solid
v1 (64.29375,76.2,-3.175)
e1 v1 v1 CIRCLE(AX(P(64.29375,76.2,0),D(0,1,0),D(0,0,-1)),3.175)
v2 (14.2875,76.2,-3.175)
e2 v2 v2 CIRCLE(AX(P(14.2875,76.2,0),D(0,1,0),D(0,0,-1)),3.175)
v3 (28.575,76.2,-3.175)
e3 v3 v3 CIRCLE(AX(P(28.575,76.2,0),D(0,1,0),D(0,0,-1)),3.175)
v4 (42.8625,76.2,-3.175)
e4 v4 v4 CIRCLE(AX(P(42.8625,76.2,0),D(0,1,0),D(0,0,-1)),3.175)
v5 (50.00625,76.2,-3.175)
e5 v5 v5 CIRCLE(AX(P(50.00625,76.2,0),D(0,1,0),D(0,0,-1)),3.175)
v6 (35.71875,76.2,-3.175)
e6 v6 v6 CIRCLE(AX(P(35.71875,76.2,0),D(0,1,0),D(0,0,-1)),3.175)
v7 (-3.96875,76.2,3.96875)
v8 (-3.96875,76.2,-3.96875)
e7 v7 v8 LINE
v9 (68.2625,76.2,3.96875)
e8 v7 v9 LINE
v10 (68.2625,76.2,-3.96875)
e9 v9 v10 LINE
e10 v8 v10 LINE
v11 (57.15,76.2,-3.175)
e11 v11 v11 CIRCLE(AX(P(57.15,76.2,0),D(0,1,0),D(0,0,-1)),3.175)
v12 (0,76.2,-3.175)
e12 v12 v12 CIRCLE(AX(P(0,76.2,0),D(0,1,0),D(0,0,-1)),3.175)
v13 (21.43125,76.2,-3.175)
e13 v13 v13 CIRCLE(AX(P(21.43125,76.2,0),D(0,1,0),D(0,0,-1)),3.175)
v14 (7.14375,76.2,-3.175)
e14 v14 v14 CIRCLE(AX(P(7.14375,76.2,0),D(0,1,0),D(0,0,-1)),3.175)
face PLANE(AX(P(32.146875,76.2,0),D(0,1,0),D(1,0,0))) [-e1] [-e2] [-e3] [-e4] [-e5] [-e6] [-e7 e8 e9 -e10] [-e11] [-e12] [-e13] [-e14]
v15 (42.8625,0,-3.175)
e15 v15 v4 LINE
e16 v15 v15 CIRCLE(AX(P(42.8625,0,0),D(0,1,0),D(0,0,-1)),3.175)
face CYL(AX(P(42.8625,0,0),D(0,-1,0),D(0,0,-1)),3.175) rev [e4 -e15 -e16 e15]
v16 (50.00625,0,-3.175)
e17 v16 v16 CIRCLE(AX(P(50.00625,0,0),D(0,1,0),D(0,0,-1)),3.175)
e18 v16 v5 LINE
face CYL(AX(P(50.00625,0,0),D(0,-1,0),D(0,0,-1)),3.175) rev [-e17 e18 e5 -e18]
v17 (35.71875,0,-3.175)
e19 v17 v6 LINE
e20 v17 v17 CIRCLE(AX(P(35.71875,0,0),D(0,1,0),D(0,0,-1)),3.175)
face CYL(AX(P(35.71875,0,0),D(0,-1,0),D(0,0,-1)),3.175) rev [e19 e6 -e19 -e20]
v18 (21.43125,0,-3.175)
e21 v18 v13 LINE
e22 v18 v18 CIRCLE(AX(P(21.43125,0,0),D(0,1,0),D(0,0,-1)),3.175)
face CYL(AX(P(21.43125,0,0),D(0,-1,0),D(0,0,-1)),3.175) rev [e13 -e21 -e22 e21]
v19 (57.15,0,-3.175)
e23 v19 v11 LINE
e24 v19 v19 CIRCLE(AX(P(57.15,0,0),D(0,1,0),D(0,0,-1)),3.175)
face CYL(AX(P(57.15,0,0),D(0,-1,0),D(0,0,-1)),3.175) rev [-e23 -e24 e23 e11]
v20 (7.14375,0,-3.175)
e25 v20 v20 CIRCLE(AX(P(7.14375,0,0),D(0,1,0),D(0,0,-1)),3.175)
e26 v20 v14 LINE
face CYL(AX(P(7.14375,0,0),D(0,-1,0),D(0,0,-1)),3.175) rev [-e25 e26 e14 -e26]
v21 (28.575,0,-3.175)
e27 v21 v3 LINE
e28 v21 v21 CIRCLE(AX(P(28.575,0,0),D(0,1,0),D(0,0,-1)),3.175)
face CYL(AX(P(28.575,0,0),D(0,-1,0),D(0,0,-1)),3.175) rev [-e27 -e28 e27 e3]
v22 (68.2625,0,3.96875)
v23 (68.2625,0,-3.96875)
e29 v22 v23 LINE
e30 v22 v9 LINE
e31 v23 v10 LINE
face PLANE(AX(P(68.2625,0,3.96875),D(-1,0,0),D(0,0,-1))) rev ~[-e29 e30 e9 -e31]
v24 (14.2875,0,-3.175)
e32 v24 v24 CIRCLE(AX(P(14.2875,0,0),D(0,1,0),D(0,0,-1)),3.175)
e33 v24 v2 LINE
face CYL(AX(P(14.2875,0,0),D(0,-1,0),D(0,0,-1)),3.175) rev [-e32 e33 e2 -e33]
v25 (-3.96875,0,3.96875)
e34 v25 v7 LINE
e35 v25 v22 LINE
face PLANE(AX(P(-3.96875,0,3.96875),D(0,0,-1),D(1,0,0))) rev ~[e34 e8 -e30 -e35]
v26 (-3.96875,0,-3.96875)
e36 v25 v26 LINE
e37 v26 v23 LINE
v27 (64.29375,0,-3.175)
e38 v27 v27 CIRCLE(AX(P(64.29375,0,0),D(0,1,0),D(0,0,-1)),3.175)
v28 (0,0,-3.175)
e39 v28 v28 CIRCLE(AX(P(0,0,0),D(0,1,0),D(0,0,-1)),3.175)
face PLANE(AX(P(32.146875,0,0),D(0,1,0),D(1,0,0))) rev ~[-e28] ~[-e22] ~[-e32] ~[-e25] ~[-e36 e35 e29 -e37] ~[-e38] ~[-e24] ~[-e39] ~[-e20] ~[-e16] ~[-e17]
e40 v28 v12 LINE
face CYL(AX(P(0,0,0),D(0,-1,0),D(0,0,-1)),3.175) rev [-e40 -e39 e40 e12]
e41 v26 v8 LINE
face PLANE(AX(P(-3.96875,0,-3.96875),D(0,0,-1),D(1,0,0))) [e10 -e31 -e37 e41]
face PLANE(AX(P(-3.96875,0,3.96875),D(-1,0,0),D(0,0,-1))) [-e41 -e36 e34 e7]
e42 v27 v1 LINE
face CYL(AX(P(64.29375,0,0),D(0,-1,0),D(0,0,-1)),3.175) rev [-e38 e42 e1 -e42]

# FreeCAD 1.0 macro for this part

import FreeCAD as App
import Part
import Sketcher
Q = App.Units.Quantity


def add_polygon(sketch, points):
    """Adds a closed chain of lines whose ends are joined by coincident constraints."""
    first, n = sketch.GeometryCount, len(points)
    for a, b in zip(points, points[1:] + points[:1]):
        sketch.addGeometry(Part.LineSegment(App.Vector(*a, 0), App.Vector(*b, 0)), False)
    for i in range(n):
        sketch.addConstraint(Sketcher.Constraint("Coincident", first + i, 2, first + (i + 1) % n, 1))

doc = App.newDocument("Part")
body = doc.addObject("PartDesign::Body", "Body")

# Sketch on XZ plane
sketch1 = doc.addObject("Sketcher::SketchObject", "Sketch")
body.addObject(sketch1)
sketch1.AttachmentSupport = (doc.XZ_Plane, [""])
sketch1.MapMode = "FlatFace"
add_polygon(sketch1, [(-3.96875, -3.96875), (-3.96875, 3.96875), (68.2625, 3.96875), (68.2625, -3.96875)])  # lines 0-3
sketch1.addGeometry(Part.Circle(App.Vector(0, 0, 0), App.Vector(0, 0, 1), 3.175), False)  # 4
sketch1.addGeometry(Part.Circle(App.Vector(7.14375, 0, 0), App.Vector(0, 0, 1), 3.175), False)  # 5
sketch1.addGeometry(Part.Circle(App.Vector(14.2875, 0, 0), App.Vector(0, 0, 1), 3.175), False)  # 6
sketch1.addGeometry(Part.Circle(App.Vector(21.43125, 0, 0), App.Vector(0, 0, 1), 3.175), False)  # 7
sketch1.addGeometry(Part.Circle(App.Vector(28.575, 0, 0), App.Vector(0, 0, 1), 3.175), False)  # 8
sketch1.addGeometry(Part.Circle(App.Vector(35.71875, 0, 0), App.Vector(0, 0, 1), 3.175), False)  # 9
sketch1.addGeometry(Part.Circle(App.Vector(42.8625, 0, 0), App.Vector(0, 0, 1), 3.175), False)  # 10
sketch1.addGeometry(Part.Circle(App.Vector(50.00625, 0, 0), App.Vector(0, 0, 1), 3.175), False)  # 11
sketch1.addGeometry(Part.Circle(App.Vector(57.15, 0, 0), App.Vector(0, 0, 1), 3.175), False)  # 12
sketch1.addGeometry(Part.Circle(App.Vector(64.29375, 0, 0), App.Vector(0, 0, 1), 3.175), False)  # 13
sketch1.addConstraint(Sketcher.Constraint("Vertical", 0))
sketch1.addConstraint(Sketcher.Constraint("Horizontal", 1))
sketch1.addConstraint(Sketcher.Constraint("Vertical", 2))
sketch1.addConstraint(Sketcher.Constraint("Horizontal", 3))
sketch1.addConstraint(Sketcher.Constraint("Coincident", 4, 3, -1, 1))
sketch1.addConstraint(Sketcher.Constraint("Equal", 4, 5))
sketch1.addConstraint(Sketcher.Constraint("Equal", 5, 6))
sketch1.addConstraint(Sketcher.Constraint("Equal", 6, 7))
sketch1.addConstraint(Sketcher.Constraint("Equal", 7, 8))
sketch1.addConstraint(Sketcher.Constraint("Equal", 8, 9))
sketch1.addConstraint(Sketcher.Constraint("Equal", 9, 10))
sketch1.addConstraint(Sketcher.Constraint("Equal", 10, 11))
sketch1.addConstraint(Sketcher.Constraint("Equal", 11, 12))
sketch1.addConstraint(Sketcher.Constraint("Equal", 12, 13))
sketch1.addConstraint(Sketcher.Constraint("PointOnObject", 5, 3, -1))
sketch1.addConstraint(Sketcher.Constraint("PointOnObject", 6, 3, -1))
sketch1.addConstraint(Sketcher.Constraint("PointOnObject", 7, 3, -1))
sketch1.addConstraint(Sketcher.Constraint("PointOnObject", 8, 3, -1))
sketch1.addConstraint(Sketcher.Constraint("PointOnObject", 9, 3, -1))
sketch1.addConstraint(Sketcher.Constraint("PointOnObject", 10, 3, -1))
sketch1.addConstraint(Sketcher.Constraint("PointOnObject", 11, 3, -1))
sketch1.addConstraint(Sketcher.Constraint("PointOnObject", 12, 3, -1))
sketch1.addConstraint(Sketcher.Constraint("PointOnObject", 13, 3, -1))
sketch1.addConstraint(Sketcher.Constraint("Diameter", 4, Q("0.25 in")))
sketch1.addConstraint(Sketcher.Constraint("DistanceX", 0, 2, 7, 3, Q("1 in")))
sketch1.addConstraint(Sketcher.Constraint("DistanceX", 10, 3, 1, 2, Q("1 in")))
sketch1.addConstraint(Sketcher.Constraint("DistanceX", 1, 1, 1, 2, Q("2.84375 in")))
sketch1.addConstraint(Sketcher.Constraint("DistanceY", 0, 1, 0, 2, Q("0.3125 in")))
sketch1.addConstraint(Sketcher.Constraint("DistanceX", -1, 1, 12, 3, Q("2.25 in")))
sketch1.addConstraint(Sketcher.Constraint("DistanceX", -1, 1, 5, 3, Q("0.28125 in")))
sketch1.addConstraint(Sketcher.Constraint("DistanceX", -1, 1, 6, 3, Q("0.5625 in")))
sketch1.addConstraint(Sketcher.Constraint("DistanceX", -1, 1, 7, 3, Q("0.84375 in")))
sketch1.addConstraint(Sketcher.Constraint("DistanceX", -1, 1, 8, 3, Q("1.125 in")))
sketch1.addConstraint(Sketcher.Constraint("DistanceX", -1, 1, 9, 3, Q("1.40625 in")))
sketch1.addConstraint(Sketcher.Constraint("DistanceX", -1, 1, 11, 3, Q("1.96875 in")))
sketch1.addConstraint(Sketcher.Constraint("DistanceX", -1, 1, 13, 3, Q("2.53125 in")))
sketch1.addConstraint(Sketcher.Constraint("DistanceY", -1, 1, 0, 2, Q("0.15625 in")))
pad1 = doc.addObject("PartDesign::Pad", "Pad")
body.addObject(pad1)
pad1.Profile = sketch1
pad1.Length = Q("3 in")
pad1.Reversed = True

doc.recompute()
